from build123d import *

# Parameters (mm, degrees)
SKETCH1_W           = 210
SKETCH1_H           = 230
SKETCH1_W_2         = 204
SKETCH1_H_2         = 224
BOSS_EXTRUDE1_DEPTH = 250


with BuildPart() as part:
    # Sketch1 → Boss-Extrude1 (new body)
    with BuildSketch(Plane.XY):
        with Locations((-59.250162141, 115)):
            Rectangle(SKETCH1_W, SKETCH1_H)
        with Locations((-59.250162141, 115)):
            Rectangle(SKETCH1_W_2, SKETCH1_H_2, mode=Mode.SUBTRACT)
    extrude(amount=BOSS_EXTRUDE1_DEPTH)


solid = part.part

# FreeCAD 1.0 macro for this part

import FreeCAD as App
import Part
import Sketcher

V = App.Vector
Q = App.Units.Quantity


def add_polygon(sketch, points):
    """Adds a closed chain of lines whose ends are joined by coincident constraints."""
    first, n = sketch.GeometryCount, len(points)
    for a, b in zip(points, points[1:] + points[:1]):
        sketch.addGeometry(Part.LineSegment(App.Vector(*a, 0), App.Vector(*b, 0)), False)
    for i in range(n):
        sketch.addConstraint(Sketcher.Constraint("Coincident", first + i, 2, first + (i + 1) % n, 1))

doc = App.newDocument("Part")
body = doc.addObject("PartDesign::Body", "Body")

# Sketch on XY plane
sketch1 = body.newObject("Sketcher::SketchObject", "Sketch")
sketch1.AttachmentSupport = (doc.getObject("XY_Plane"), [""])
sketch1.MapMode = "FlatFace"
add_polygon(sketch1, [(-164, 230), (-164, 0), (46, 0), (46, 230)])  # lines 0-3
add_polygon(sketch1, [(43, 3), (-161, 3), (-161, 227), (43, 227)])  # lines 4-7
sketch1.addConstraint([
    Sketcher.Constraint("Vertical", 0),
    Sketcher.Constraint("Horizontal", 1),
    Sketcher.Constraint("Vertical", 2),
    Sketcher.Constraint("Horizontal", 3),
    Sketcher.Constraint("Horizontal", 4),
    Sketcher.Constraint("Vertical", 5),
    Sketcher.Constraint("Horizontal", 6),
    Sketcher.Constraint("Vertical", 7),
    Sketcher.Constraint("PointOnObject", 0, 2, -1),
    Sketcher.Constraint("DistanceX", 1, 1, 1, 2, Q("210 mm")),
    Sketcher.Constraint("DistanceX", 4, 2, 4, 1, Q("204 mm")),
    Sketcher.Constraint("DistanceY", 0, 2, 0, 1, Q("230 mm")),
    Sketcher.Constraint("DistanceY", 5, 1, 5, 2, Q("224 mm")),
    Sketcher.Constraint("DistanceY", -1, 1, 4, 2, Q("3 mm")),
    Sketcher.Constraint("DistanceX", 0, 2, 4, 2, Q("3 mm")),
    Sketcher.Constraint("DistanceX", 0, 2, -1, 1, Q("164.250162 mm")),
])
pad1 = body.newObject("PartDesign::Pad", "Pad")
pad1.Profile = sketch1
pad1.Length = 250

doc.recompute()
